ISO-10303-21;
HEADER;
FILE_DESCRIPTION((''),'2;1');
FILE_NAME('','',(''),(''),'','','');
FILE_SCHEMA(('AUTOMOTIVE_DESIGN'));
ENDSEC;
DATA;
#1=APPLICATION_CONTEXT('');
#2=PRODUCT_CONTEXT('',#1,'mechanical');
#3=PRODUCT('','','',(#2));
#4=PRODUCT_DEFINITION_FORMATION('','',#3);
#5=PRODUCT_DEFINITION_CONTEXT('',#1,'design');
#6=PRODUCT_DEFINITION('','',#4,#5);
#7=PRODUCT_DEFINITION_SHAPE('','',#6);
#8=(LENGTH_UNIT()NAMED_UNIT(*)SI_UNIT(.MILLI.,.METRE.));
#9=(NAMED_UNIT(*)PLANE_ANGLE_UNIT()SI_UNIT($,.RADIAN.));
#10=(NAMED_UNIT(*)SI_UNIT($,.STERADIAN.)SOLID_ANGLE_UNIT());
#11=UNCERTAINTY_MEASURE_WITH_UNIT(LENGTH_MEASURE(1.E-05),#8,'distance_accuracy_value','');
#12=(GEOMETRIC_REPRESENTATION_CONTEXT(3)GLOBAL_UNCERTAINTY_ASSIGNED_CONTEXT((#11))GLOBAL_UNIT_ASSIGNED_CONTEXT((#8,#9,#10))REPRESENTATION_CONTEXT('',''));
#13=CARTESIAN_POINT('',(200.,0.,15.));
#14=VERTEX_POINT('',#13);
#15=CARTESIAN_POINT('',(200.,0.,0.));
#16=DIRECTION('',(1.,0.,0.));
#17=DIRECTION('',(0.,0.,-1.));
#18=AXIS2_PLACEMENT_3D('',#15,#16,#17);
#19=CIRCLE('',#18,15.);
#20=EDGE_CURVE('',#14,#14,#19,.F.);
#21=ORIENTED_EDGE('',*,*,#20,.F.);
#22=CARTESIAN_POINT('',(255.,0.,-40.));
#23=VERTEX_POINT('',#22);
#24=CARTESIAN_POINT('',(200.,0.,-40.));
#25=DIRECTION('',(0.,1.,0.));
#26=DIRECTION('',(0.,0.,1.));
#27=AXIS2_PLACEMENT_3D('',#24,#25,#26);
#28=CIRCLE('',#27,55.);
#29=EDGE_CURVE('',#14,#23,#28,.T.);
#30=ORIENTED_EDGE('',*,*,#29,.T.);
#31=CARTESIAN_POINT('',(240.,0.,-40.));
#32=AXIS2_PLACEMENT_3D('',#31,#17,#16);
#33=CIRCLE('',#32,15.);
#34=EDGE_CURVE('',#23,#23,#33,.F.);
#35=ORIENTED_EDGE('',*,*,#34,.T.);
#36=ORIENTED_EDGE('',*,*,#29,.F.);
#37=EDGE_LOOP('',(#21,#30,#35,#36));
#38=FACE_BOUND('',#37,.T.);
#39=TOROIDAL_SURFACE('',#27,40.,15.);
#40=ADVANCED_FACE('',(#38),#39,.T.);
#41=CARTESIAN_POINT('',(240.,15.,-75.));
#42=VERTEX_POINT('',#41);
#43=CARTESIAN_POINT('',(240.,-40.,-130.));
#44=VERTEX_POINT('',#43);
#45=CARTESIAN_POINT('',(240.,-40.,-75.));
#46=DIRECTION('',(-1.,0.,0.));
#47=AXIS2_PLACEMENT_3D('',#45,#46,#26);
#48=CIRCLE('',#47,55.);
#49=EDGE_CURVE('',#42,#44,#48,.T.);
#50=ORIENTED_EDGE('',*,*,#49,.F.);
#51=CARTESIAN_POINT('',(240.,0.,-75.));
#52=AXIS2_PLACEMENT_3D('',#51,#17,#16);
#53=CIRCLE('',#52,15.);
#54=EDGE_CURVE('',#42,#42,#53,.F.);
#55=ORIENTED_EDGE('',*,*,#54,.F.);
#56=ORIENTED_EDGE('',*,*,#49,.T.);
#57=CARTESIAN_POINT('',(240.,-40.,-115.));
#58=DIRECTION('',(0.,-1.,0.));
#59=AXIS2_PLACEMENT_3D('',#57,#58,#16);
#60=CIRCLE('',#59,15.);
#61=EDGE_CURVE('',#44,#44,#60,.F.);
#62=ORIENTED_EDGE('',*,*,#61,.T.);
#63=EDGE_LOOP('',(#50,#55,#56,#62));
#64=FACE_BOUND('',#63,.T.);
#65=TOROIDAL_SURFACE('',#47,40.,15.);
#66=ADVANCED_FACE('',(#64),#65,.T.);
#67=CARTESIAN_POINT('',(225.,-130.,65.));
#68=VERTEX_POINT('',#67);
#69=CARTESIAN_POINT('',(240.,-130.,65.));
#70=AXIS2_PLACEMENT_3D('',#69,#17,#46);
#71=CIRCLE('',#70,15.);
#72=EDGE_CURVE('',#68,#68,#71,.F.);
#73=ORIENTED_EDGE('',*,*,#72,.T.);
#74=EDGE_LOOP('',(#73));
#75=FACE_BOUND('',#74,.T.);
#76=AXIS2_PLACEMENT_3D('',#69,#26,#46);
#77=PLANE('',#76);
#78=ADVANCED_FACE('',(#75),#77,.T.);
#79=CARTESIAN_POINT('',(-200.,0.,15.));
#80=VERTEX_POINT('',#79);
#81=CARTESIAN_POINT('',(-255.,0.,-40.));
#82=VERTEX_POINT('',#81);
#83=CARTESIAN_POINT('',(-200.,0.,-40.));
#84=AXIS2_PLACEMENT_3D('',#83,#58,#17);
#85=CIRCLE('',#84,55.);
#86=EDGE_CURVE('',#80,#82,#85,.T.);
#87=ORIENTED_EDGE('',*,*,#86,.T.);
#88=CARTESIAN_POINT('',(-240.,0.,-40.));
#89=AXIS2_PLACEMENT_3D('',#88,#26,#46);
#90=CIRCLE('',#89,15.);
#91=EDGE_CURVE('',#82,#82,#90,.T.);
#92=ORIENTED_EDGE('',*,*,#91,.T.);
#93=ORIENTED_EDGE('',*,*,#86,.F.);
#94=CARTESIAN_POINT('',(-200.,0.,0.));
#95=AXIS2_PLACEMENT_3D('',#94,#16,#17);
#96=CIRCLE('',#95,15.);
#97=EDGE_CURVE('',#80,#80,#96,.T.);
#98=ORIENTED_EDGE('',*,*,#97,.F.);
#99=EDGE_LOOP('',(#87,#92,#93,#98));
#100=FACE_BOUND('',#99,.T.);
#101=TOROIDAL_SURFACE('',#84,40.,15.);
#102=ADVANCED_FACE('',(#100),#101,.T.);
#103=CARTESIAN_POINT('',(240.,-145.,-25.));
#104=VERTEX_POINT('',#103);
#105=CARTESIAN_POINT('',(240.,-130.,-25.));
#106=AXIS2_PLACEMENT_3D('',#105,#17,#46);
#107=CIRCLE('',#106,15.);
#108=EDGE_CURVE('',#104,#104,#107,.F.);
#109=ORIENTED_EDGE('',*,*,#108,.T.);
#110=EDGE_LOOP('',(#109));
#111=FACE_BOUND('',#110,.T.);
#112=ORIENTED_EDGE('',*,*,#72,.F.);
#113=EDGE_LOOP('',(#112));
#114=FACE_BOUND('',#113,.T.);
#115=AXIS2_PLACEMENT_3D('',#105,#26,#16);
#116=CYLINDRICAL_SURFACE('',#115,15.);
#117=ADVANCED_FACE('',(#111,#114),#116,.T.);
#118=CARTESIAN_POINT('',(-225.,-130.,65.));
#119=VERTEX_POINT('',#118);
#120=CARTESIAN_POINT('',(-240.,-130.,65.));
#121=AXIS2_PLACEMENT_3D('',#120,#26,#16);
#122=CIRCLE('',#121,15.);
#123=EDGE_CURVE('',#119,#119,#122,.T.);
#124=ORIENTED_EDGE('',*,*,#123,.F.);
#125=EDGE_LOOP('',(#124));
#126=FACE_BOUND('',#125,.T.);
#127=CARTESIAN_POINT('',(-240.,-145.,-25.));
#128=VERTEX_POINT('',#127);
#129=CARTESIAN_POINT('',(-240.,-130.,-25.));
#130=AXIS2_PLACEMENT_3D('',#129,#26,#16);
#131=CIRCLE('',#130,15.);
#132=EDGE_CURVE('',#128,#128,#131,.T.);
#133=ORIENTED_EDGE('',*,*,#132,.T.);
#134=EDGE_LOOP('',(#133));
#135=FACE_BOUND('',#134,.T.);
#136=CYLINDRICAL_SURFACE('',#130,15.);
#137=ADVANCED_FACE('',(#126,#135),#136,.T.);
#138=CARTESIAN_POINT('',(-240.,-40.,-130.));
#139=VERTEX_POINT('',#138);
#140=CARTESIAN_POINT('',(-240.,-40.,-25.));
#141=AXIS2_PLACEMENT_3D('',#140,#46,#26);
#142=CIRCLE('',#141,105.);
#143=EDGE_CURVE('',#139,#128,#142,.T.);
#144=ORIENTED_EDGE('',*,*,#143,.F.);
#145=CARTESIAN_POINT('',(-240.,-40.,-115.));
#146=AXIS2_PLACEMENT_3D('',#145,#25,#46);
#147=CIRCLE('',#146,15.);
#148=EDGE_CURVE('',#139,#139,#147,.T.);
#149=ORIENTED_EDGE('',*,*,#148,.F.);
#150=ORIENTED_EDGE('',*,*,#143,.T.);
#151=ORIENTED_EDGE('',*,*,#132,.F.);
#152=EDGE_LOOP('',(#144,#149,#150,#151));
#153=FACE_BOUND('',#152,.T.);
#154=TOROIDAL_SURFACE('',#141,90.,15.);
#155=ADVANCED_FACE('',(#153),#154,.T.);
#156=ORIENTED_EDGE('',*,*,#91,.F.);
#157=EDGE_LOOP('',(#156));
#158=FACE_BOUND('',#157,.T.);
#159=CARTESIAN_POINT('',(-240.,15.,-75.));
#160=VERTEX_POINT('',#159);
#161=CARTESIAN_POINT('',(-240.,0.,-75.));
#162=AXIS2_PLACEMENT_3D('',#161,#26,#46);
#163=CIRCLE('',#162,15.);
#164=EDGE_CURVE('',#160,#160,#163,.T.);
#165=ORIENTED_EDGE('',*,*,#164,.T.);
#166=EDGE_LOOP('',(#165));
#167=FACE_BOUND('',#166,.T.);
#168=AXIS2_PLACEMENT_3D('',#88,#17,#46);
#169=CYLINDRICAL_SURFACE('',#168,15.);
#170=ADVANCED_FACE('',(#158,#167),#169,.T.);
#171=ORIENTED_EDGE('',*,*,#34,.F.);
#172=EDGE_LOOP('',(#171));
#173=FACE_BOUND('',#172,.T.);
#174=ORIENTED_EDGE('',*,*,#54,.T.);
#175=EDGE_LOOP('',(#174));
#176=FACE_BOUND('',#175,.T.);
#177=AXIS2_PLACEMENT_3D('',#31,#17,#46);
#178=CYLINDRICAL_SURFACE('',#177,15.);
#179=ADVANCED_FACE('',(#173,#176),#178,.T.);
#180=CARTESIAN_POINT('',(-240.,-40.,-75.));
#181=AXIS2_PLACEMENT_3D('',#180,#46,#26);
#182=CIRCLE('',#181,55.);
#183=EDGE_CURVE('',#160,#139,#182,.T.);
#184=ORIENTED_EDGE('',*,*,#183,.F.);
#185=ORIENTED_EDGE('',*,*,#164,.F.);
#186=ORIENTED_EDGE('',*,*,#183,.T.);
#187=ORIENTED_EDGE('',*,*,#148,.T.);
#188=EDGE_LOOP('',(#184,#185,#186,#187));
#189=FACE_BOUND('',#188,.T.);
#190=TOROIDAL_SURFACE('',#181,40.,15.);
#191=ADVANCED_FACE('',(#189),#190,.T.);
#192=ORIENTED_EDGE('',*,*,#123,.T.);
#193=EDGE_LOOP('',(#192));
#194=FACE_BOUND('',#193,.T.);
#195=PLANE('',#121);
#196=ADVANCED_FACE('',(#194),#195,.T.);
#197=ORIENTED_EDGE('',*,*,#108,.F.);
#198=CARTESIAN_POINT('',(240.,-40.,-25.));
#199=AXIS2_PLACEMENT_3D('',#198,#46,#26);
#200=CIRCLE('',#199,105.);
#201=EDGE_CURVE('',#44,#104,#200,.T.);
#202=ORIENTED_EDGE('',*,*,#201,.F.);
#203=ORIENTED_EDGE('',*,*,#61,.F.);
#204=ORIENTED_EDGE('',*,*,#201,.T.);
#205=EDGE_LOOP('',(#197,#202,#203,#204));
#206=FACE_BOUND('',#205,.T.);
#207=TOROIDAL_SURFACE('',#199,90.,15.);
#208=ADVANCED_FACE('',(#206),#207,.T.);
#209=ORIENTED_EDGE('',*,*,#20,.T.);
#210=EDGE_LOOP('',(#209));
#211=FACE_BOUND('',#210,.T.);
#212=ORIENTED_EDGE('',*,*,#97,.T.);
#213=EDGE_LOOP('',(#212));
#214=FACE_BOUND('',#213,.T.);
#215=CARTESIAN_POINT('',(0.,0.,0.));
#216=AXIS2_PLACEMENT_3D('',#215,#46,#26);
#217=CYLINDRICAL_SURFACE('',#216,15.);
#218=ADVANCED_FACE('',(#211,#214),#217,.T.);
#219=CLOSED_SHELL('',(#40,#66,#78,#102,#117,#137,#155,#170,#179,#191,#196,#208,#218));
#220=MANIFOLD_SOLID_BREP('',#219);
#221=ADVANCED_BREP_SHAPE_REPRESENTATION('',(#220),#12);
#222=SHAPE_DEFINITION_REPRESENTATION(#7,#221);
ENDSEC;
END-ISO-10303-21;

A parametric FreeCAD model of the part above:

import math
import FreeCAD as App
import Part
import Sketcher
from FreeCAD import Vector

doc = App.newDocument("Part")
body = doc.addObject("PartDesign::Body", "Body")

# Sketch on YZ plane
sketch1 = body.newObject("Sketcher::SketchObject", "Sketch")
sketch1.AttachmentSupport = (doc.getObject("YZ_Plane"), [""])
sketch1.MapMode = "FlatFace"
sketch1.addGeometry(Part.Circle(Vector(0, 0, 0), Vector(0, 0, 1), 15), False)
sketch1.addConstraint([
    Sketcher.Constraint("Coincident", 0, 3, -1, 1),
    Sketcher.Constraint("Diameter", 0, 30.0),
])

# Sketch on XZ plane
sketch2 = body.newObject("Sketcher::SketchObject", "Sketch001")
sketch2.AttachmentSupport = (doc.getObject("XZ_Plane"), [""])
sketch2.MapMode = "FlatFace"
sketch2.addGeometry([
    Part.LineSegment(Vector(0, 0, 0), Vector(-200, 0, 0)),
    Part.ArcOfCircle(Part.Circle(Vector(-200, -40, 0), Vector(0, 0, 1), 40), math.radians(90), math.radians(180)),
], False)
sketch2.addConstraint([
    Sketcher.Constraint("Tangent", 0, 2, 1, 1),
    Sketcher.Constraint("Horizontal", 0),
    Sketcher.Constraint("Coincident", 0, 1, -1, 1),
    Sketcher.Constraint("Radius", 1, 40.0),
    Sketcher.Constraint("DistanceX", 0, 2, 0, 1, 200.0),
    Sketcher.Constraint("DistanceY", 1, 2, -1, 1, 40.0),
])
doc.recompute()

additivepipe = body.newObject("PartDesign::AdditivePipe", "AdditivePipe")
additivepipe.Profile = sketch1
additivepipe.Spine = (sketch2, ["Edge1", "Edge2"])

# Sketch on XY plane
sketch3 = body.newObject("Sketcher::SketchObject", "Sketch002")
sketch3.AttachmentSupport = (doc.getObject("XY_Plane"), [""])
sketch3.MapMode = "FlatFace"
sketch3.AttachmentOffset = App.Placement(Vector(0, 0, -40), App.Rotation())
sketch3.addGeometry(Part.Circle(Vector(-240, 0, 0), Vector(0, 0, 1), 15), False)
sketch3.addConstraint([
    Sketcher.Constraint("PointOnObject", 0, 3, -1),
    Sketcher.Constraint("Diameter", 0, 30.0),
    Sketcher.Constraint("DistanceX", 0, 3, -1, 1, 240.0),
])

# Sketch on YZ plane
sketch4 = body.newObject("Sketcher::SketchObject", "Sketch003")
sketch4.AttachmentSupport = (doc.getObject("YZ_Plane"), [""])
sketch4.MapMode = "FlatFace"
sketch4.AttachmentOffset = App.Placement(Vector(0, 0, -240), App.Rotation())
sketch4.addGeometry([
    Part.LineSegment(Vector(0, -40, 0), Vector(0, -75, 0)),
    Part.ArcOfCircle(Part.Circle(Vector(-40, -75, 0), Vector(0, 0, 1), 40), math.radians(-90), math.radians(0)),
    Part.ArcOfCircle(Part.Circle(Vector(-40, -25, 0), Vector(0, 0, 1), 90), math.radians(180), math.radians(270)),
], False)
sketch4.addConstraint([
    Sketcher.Constraint("Tangent", 0, 2, 1, 2),
    Sketcher.Constraint("Tangent", 1, 1, 2, 2),
    Sketcher.Constraint("Vertical", 0),
    Sketcher.Constraint("PointOnObject", 0, 1, -2),
    Sketcher.Constraint("Vertical", 1, 3, 2, 3),
    Sketcher.Constraint("Radius", 1, 40.0),
    Sketcher.Constraint("Radius", 2, 90.0),
    Sketcher.Constraint("DistanceY", 0, 2, 0, 1, 35.0),
    Sketcher.Constraint("DistanceY", 1, 3, -1, 1, 75.0),
    Sketcher.Constraint("DistanceY", 2, 1, -1, 1, 25.0),
])
doc.recompute()

additivepipe2 = body.newObject("PartDesign::AdditivePipe", "AdditivePipe001")
additivepipe2.Profile = sketch3
additivepipe2.Spine = (sketch4, ["Edge1", "Edge2", "Edge3"])

# Sketch on XY plane
sketch5 = body.newObject("Sketcher::SketchObject", "Sketch004")
sketch5.AttachmentSupport = (doc.getObject("XY_Plane"), [""])
sketch5.MapMode = "FlatFace"
sketch5.AttachmentOffset = App.Placement(Vector(0, 0, -25), App.Rotation())
sketch5.addGeometry(Part.Circle(Vector(-240, -130, 0), Vector(0, 0, 1), 15), False)
sketch5.addConstraint([
    Sketcher.Constraint("Diameter", 0, 30.0),
    Sketcher.Constraint("DistanceX", 0, 3, -1, 1, 240.0),
    Sketcher.Constraint("DistanceY", 0, 3, -1, 1, 130.0),
])

# Sketch on XZ plane
sketch6 = body.newObject("Sketcher::SketchObject", "Sketch005")
sketch6.AttachmentSupport = (doc.getObject("XZ_Plane"), [""])
sketch6.MapMode = "FlatFace"
sketch6.AttachmentOffset = App.Placement(Vector(0, 0, 130), App.Rotation())
sketch6.addGeometry(Part.LineSegment(Vector(-240, -25, 0), Vector(-240, 65, 0)), False)
sketch6.addConstraint([
    Sketcher.Constraint("Vertical", 0),
    Sketcher.Constraint("DistanceY", 0, 1, 0, 2, 90.0),
    Sketcher.Constraint("DistanceX", 0, 1, -1, 1, 240.0),
    Sketcher.Constraint("DistanceY", 0, 1, -1, 1, 25.0),
])
doc.recompute()

additivepipe3 = body.newObject("PartDesign::AdditivePipe", "AdditivePipe002")
additivepipe3.Profile = sketch5
additivepipe3.Spine = (sketch6, ["Edge1"])
doc.recompute()

mirrored = body.newObject("PartDesign::Mirrored", "Mirrored")
mirrored.Originals = [additivepipe, additivepipe2, additivepipe3]
mirrored.MirrorPlane = (doc.getObject("YZ_Plane"), [""])
body.Tip = mirrored

doc.recompute()
